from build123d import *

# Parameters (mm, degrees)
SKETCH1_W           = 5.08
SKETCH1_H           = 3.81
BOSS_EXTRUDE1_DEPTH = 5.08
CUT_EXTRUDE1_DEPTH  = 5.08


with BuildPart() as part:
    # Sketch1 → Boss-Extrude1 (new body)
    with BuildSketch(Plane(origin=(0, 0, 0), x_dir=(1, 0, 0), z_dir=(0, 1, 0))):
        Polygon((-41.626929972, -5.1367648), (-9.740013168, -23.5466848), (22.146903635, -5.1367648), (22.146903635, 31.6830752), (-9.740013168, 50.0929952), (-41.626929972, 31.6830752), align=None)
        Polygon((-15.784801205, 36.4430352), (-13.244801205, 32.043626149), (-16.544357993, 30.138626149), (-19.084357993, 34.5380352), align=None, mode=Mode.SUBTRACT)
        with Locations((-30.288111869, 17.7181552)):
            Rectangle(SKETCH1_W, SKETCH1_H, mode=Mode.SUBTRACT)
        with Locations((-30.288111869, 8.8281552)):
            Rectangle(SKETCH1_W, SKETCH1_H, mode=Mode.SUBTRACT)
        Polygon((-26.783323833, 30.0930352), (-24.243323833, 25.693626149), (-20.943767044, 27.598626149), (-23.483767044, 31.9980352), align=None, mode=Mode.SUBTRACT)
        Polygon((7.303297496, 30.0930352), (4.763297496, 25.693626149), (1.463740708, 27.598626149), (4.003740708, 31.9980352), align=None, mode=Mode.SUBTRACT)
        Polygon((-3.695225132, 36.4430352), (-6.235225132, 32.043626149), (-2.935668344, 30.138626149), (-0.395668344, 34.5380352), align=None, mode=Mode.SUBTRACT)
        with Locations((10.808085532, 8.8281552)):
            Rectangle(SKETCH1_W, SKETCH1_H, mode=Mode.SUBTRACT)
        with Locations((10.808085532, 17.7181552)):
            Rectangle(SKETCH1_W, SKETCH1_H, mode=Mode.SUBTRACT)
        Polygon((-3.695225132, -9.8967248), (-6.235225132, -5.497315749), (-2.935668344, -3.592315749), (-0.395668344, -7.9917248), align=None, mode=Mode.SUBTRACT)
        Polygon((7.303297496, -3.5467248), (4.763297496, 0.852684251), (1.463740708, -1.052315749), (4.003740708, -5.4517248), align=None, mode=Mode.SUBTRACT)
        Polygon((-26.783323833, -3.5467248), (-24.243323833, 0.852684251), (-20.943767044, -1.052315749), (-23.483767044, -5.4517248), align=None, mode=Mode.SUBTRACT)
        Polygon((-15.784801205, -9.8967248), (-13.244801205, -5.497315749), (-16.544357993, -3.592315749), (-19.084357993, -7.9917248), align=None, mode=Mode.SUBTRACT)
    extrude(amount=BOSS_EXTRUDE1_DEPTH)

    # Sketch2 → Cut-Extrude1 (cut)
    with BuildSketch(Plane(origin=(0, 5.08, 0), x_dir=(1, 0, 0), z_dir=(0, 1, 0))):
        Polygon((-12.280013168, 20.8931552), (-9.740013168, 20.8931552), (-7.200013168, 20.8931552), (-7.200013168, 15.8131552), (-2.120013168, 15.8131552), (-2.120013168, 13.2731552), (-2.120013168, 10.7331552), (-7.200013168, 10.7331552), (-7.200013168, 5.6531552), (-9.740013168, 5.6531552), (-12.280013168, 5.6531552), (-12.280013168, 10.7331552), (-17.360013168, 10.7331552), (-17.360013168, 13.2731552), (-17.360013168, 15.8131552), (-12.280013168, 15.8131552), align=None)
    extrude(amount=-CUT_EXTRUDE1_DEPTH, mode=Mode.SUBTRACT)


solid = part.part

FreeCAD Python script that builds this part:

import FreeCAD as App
import Part
import Sketcher
from FreeCAD import Vector
Q = App.Units.Quantity


def add_polygon(sketch, points):
    """Adds a closed chain of lines whose ends are joined by coincident constraints."""
    first, n = sketch.GeometryCount, len(points)
    for a, b in zip(points, points[1:] + points[:1]):
        sketch.addGeometry(Part.LineSegment(App.Vector(*a, 0), App.Vector(*b, 0)), False)
    for i in range(n):
        sketch.addConstraint(Sketcher.Constraint("Coincident", first + i, 2, first + (i + 1) % n, 1))

doc = App.newDocument("Part")
body = doc.addObject("PartDesign::Body", "Body")

sketch1 = doc.addObject("Sketcher::SketchObject", "Sketch")
body.addObject(sketch1)
sketch1.AttachmentSupport = (doc.XZ_Plane, [""])
sketch1.MapMode = "FlatFace"
add_polygon(sketch1, [(-41.6, 5.1), (-9.7, 23.5), (22.1, 5.1), (22.1, -31.7), (-9.7, -50.1), (-41.6, -31.7)])
add_polygon(sketch1, [(-23.5, 5.5), (-26.8, 3.5), (-24.2, -0.9), (-20.9, 1.1)])
add_polygon(sketch1, [(-13.2, 5.5), (-15.8, 9.9), (-19.1, 8), (-16.5, 3.6)])
add_polygon(sketch1, [(-27.7, -6.9), (-32.8, -6.9), (-32.8, -10.7), (-27.7, -10.7)])
add_polygon(sketch1, [(-0.4, 8), (-3.7, 9.9), (-6.2, 5.5), (-2.9, 3.6)])
add_polygon(sketch1, [(4.8, -0.9), (7.3, 3.5), (4, 5.5), (1.5, 1.1)])
add_polygon(sketch1, [(13.3, -6.9), (8.3, -6.9), (8.3, -10.7), (13.3, -10.7)])
add_polygon(sketch1, [(-27.7, -15.8), (-32.8, -15.8), (-32.8, -19.6), (-27.7, -19.6)])
add_polygon(sketch1, [(-24.2, -25.7), (-26.8, -30.1), (-23.5, -32), (-20.9, -27.6)])
add_polygon(sketch1, [(-19.1, -34.5), (-15.8, -36.4), (-13.2, -32), (-16.5, -30.1)])
add_polygon(sketch1, [(13.3, -15.8), (8.3, -15.8), (8.3, -19.6), (13.3, -19.6)])
add_polygon(sketch1, [(-6.2, -32), (-3.7, -36.4), (-0.4, -34.5), (-2.9, -30.1)])
add_polygon(sketch1, [(4, -32), (7.3, -30.1), (4.8, -25.7), (1.5, -27.6)])
sketch1.addConstraint(Sketcher.Constraint("Vertical", 2))
sketch1.addConstraint(Sketcher.Constraint("Vertical", 5))
sketch1.addConstraint(Sketcher.Constraint("Horizontal", 14))
sketch1.addConstraint(Sketcher.Constraint("Vertical", 15))
sketch1.addConstraint(Sketcher.Constraint("Horizontal", 16))
sketch1.addConstraint(Sketcher.Constraint("Vertical", 17))
sketch1.addConstraint(Sketcher.Constraint("Horizontal", 26))
sketch1.addConstraint(Sketcher.Constraint("Vertical", 27))
sketch1.addConstraint(Sketcher.Constraint("Horizontal", 28))
sketch1.addConstraint(Sketcher.Constraint("Vertical", 29))
sketch1.addConstraint(Sketcher.Constraint("Horizontal", 30))
sketch1.addConstraint(Sketcher.Constraint("Vertical", 31))
sketch1.addConstraint(Sketcher.Constraint("Horizontal", 32))
sketch1.addConstraint(Sketcher.Constraint("Vertical", 33))
sketch1.addConstraint(Sketcher.Constraint("Horizontal", 42))
sketch1.addConstraint(Sketcher.Constraint("Vertical", 43))
sketch1.addConstraint(Sketcher.Constraint("Horizontal", 44))
sketch1.addConstraint(Sketcher.Constraint("Vertical", 45))
sketch1.addConstraint(Sketcher.Constraint("Parallel", 0, 3))
sketch1.addConstraint(Sketcher.Constraint("Parallel", 1, 4))
sketch1.addConstraint(Sketcher.Constraint("Parallel", 3, 6))
sketch1.addConstraint(Sketcher.Constraint("Perpendicular", 6, 7))
sketch1.addConstraint(Sketcher.Constraint("Perpendicular", 7, 8))
sketch1.addConstraint(Sketcher.Constraint("Perpendicular", 8, 9))
sketch1.addConstraint(Sketcher.Constraint("Parallel", 9, 10))
sketch1.addConstraint(Sketcher.Constraint("Perpendicular", 10, 11))
sketch1.addConstraint(Sketcher.Constraint("Perpendicular", 11, 12))
sketch1.addConstraint(Sketcher.Constraint("Perpendicular", 12, 13))
sketch1.addConstraint(Sketcher.Constraint("Parallel", 4, 18))
sketch1.addConstraint(Sketcher.Constraint("Perpendicular", 18, 19))
sketch1.addConstraint(Sketcher.Constraint("Perpendicular", 19, 20))
sketch1.addConstraint(Sketcher.Constraint("Perpendicular", 20, 21))
sketch1.addConstraint(Sketcher.Constraint("Parallel", 21, 22))
sketch1.addConstraint(Sketcher.Constraint("Perpendicular", 22, 23))
sketch1.addConstraint(Sketcher.Constraint("Perpendicular", 23, 24))
sketch1.addConstraint(Sketcher.Constraint("Perpendicular", 24, 25))
sketch1.addConstraint(Sketcher.Constraint("Perpendicular", 25, 34))
sketch1.addConstraint(Sketcher.Constraint("Perpendicular", 34, 35))
sketch1.addConstraint(Sketcher.Constraint("Perpendicular", 35, 36))
sketch1.addConstraint(Sketcher.Constraint("Perpendicular", 36, 37))
sketch1.addConstraint(Sketcher.Constraint("Parallel", 37, 38))
sketch1.addConstraint(Sketcher.Constraint("Perpendicular", 38, 39))
sketch1.addConstraint(Sketcher.Constraint("Perpendicular", 39, 40))
sketch1.addConstraint(Sketcher.Constraint("Perpendicular", 40, 41))
sketch1.addConstraint(Sketcher.Constraint("Perpendicular", 13, 46))
sketch1.addConstraint(Sketcher.Constraint("Perpendicular", 46, 47))
sketch1.addConstraint(Sketcher.Constraint("Perpendicular", 47, 48))
sketch1.addConstraint(Sketcher.Constraint("Perpendicular", 48, 49))
sketch1.addConstraint(Sketcher.Constraint("Parallel", 49, 50))
sketch1.addConstraint(Sketcher.Constraint("Perpendicular", 50, 51))
sketch1.addConstraint(Sketcher.Constraint("Perpendicular", 51, 52))
sketch1.addConstraint(Sketcher.Constraint("Perpendicular", 52, 53))
sketch1.addConstraint(Sketcher.Constraint("Horizontal", 2, 2, 4, 2))
sketch1.addConstraint(Sketcher.Constraint("Horizontal", 1, 2, 5, 2))
sketch1.addConstraint(Sketcher.Constraint("Horizontal", 10, 2, 18, 2))
sketch1.addConstraint(Sketcher.Constraint("Horizontal", 13, 2, 19, 2))
sketch1.addConstraint(Sketcher.Constraint("Horizontal", 12, 2, 20, 2))
sketch1.addConstraint(Sketcher.Constraint("Horizontal", 6, 2, 22, 2))
sketch1.addConstraint(Sketcher.Constraint("Horizontal", 9, 2, 23, 2))
sketch1.addConstraint(Sketcher.Constraint("Horizontal", 8, 2, 24, 2))
sketch1.addConstraint(Sketcher.Constraint("Horizontal", 17, 2, 26, 2))
sketch1.addConstraint(Sketcher.Constraint("Horizontal", 16, 2, 27, 2))
sketch1.addConstraint(Sketcher.Constraint("Horizontal", 33, 2, 42, 2))
sketch1.addConstraint(Sketcher.Constraint("Horizontal", 32, 2, 43, 2))
sketch1.addConstraint(Sketcher.Constraint("Horizontal", 38, 2, 46, 2))
sketch1.addConstraint(Sketcher.Constraint("Horizontal", 41, 2, 47, 2))
sketch1.addConstraint(Sketcher.Constraint("Horizontal", 40, 2, 48, 2))
sketch1.addConstraint(Sketcher.Constraint("Horizontal", 34, 2, 50, 2))
sketch1.addConstraint(Sketcher.Constraint("Horizontal", 37, 2, 51, 2))
sketch1.addConstraint(Sketcher.Constraint("Horizontal", 36, 2, 52, 2))
sketch1.addConstraint(Sketcher.Constraint("Vertical", 0, 2, 3, 2))
sketch1.addConstraint(Sketcher.Constraint("Vertical", 15, 2, 30, 2))
sketch1.addConstraint(Sketcher.Constraint("Vertical", 17, 2, 32, 2))
sketch1.addConstraint(Sketcher.Constraint("Vertical", 6, 2, 34, 2))
sketch1.addConstraint(Sketcher.Constraint("Vertical", 9, 2, 35, 2))
sketch1.addConstraint(Sketcher.Constraint("Vertical", 8, 2, 36, 2))
sketch1.addConstraint(Sketcher.Constraint("Vertical", 10, 2, 38, 2))
sketch1.addConstraint(Sketcher.Constraint("Vertical", 13, 2, 39, 2))
sketch1.addConstraint(Sketcher.Constraint("Vertical", 12, 2, 40, 2))
sketch1.addConstraint(Sketcher.Constraint("Vertical", 27, 2, 42, 2))
sketch1.addConstraint(Sketcher.Constraint("Vertical", 29, 2, 44, 2))
sketch1.addConstraint(Sketcher.Constraint("Vertical", 18, 2, 46, 2))
sketch1.addConstraint(Sketcher.Constraint("Vertical", 22, 2, 50, 2))
sketch1.addConstraint(Sketcher.Constraint("Equal", 16, 26))
sketch1.addConstraint(Sketcher.Constraint("Equal", 29, 31))
sketch1.addConstraint(Sketcher.Constraint("Equal", 9, 10))
sketch1.addConstraint(Sketcher.Constraint("Equal", 8, 11))
sketch1.addConstraint(Sketcher.Constraint("DistanceX", 14, 2, 14, 1, Q("0.2 in")))
sketch1.addConstraint(Sketcher.Constraint("Angle", 0, Q("30 deg")))
sketch1.addConstraint(Sketcher.Constraint("Distance", 7, Q("0.2 in")))
sketch1.addConstraint(Sketcher.Constraint("DistanceY", 15, 2, 15, 1, Q("0.15 in")))
sketch1.addConstraint(Sketcher.Constraint("DistanceY", 9, 2, 11, 2, Q("0.1 in")))
sketch1.addConstraint(Sketcher.Constraint("DistanceY", 30, 2, 15, 2, Q("0.2 in")))
sketch1.addConstraint(Sketcher.Constraint("DistanceY", 40, 2, 36, 2, Q("0.1 in")))
sketch1.addConstraint(Sketcher.Constraint("Distance", 6, Q("0.15 in")))
sketch1.addConstraint(Sketcher.Constraint("DistanceY", 2, 2, 2, 1, Q("1.4496 in")))
sketch1.addConstraint(Sketcher.Constraint("DistanceY", 4, 2, 6, 2, Q("1.387 in")))
sketch1.addConstraint(Sketcher.Constraint("Distance", 0, Q("1.4496 in")))
sketch1.addConstraint(Sketcher.Constraint("DistanceY", 14, 2, 6, 2, Q("0.4122 in")))
sketch1.addConstraint(Sketcher.Constraint("DistanceY", 34, 2, 32, 2, Q("0.4122 in")))
sketch1.addConstraint(Sketcher.Constraint("DistanceX", 10, 2, -1, 1, Q("15.784801 mm")))
sketch1.addConstraint(Sketcher.Constraint("DistanceX", 4, 2, -1, 1, Q("41.62693 mm")))
sketch1.addConstraint(Sketcher.Constraint("DistanceX", 14, 2, -1, 1, Q("32.828112 mm")))
sketch1.addConstraint(Sketcher.Constraint("DistanceX", 20, 2, -1, 1, Q("2.935668 mm")))
sketch1.addConstraint(Sketcher.Constraint("DistanceX", -1, 1, 23, 2, Q("4.003741 mm")))
sketch1.addConstraint(Sketcher.Constraint("DistanceX", 6, 2, 0, 2, Q("17.043311 mm")))
sketch1.addConstraint(Sketcher.Constraint("DistanceX", 25, 2, 26, 2, Q("3.504788 mm")))
sketch1.addConstraint(Sketcher.Constraint("DistanceY", -1, 1, 0, 2, Q("23.546685 mm")))
pad1 = doc.addObject("PartDesign::Pad", "Pad")
body.addObject(pad1)
pad1.Profile = sketch1
pad1.Length = Q("0.2 in")
pad1.Reversed = True

sketch2 = doc.addObject("Sketcher::SketchObject", "Sketch001")
body.addObject(sketch2)
sketch2.AttachmentSupport = (doc.XZ_Plane, [""])
sketch2.MapMode = "FlatFace"
sketch2.AttachmentOffset = App.Placement(Vector(0, 0, -0.2 * 25.4), App.Rotation())
add_polygon(sketch2, [(-7, -21), (-12, -21), (-12, -16), (-17, -16), (-17, -11), (-12, -11), (-12, -6), (-7, -6), (-7, -11), (-2, -11), (-2, -16), (-7, -16)])
sketch2.addConstraint(Sketcher.Constraint("Horizontal", 0))
sketch2.addConstraint(Sketcher.Constraint("Vertical", 1))
sketch2.addConstraint(Sketcher.Constraint("Horizontal", 2))
sketch2.addConstraint(Sketcher.Constraint("Vertical", 3))
sketch2.addConstraint(Sketcher.Constraint("Horizontal", 4))
sketch2.addConstraint(Sketcher.Constraint("Vertical", 5))
sketch2.addConstraint(Sketcher.Constraint("Horizontal", 6))
sketch2.addConstraint(Sketcher.Constraint("Vertical", 7))
sketch2.addConstraint(Sketcher.Constraint("Horizontal", 8))
sketch2.addConstraint(Sketcher.Constraint("Vertical", 9))
sketch2.addConstraint(Sketcher.Constraint("Horizontal", 10))
sketch2.addConstraint(Sketcher.Constraint("Vertical", 11))
sketch2.addConstraint(Sketcher.Constraint("Horizontal", 4, 2, 7, 2))
sketch2.addConstraint(Sketcher.Constraint("Horizontal", 2, 2, 9, 2))
sketch2.addConstraint(Sketcher.Constraint("Vertical", 1, 2, 4, 2))
sketch2.addConstraint(Sketcher.Constraint("Vertical", 7, 2, 10, 2))
sketch2.addConstraint(Sketcher.Constraint("Equal", 0, 2))
sketch2.addConstraint(Sketcher.Constraint("Equal", 6, 8))
sketch2.addConstraint(Sketcher.Constraint("Equal", 10, 1))
sketch2.addConstraint(Sketcher.Constraint("Equal", 1, 3))
sketch2.addConstraint(Sketcher.Constraint("Equal", 3, 5))
sketch2.addConstraint(Sketcher.Constraint("DistanceX", 0, 2, 0, 1, Q("0.2 in")))
sketch2.addConstraint(Sketcher.Constraint("DistanceX", 0, 2, -1, 1, Q("12.280013 mm")))
sketch2.addConstraint(Sketcher.Constraint("DistanceY", 0, 2, -1, 1, Q("20.893155 mm")))
pocket1 = doc.addObject("PartDesign::Pocket", "Pocket")
body.addObject(pocket1)
pocket1.Profile = sketch2
pocket1.Length = Q("0.2 in")
pocket1.Reversed = True

doc.recompute()
